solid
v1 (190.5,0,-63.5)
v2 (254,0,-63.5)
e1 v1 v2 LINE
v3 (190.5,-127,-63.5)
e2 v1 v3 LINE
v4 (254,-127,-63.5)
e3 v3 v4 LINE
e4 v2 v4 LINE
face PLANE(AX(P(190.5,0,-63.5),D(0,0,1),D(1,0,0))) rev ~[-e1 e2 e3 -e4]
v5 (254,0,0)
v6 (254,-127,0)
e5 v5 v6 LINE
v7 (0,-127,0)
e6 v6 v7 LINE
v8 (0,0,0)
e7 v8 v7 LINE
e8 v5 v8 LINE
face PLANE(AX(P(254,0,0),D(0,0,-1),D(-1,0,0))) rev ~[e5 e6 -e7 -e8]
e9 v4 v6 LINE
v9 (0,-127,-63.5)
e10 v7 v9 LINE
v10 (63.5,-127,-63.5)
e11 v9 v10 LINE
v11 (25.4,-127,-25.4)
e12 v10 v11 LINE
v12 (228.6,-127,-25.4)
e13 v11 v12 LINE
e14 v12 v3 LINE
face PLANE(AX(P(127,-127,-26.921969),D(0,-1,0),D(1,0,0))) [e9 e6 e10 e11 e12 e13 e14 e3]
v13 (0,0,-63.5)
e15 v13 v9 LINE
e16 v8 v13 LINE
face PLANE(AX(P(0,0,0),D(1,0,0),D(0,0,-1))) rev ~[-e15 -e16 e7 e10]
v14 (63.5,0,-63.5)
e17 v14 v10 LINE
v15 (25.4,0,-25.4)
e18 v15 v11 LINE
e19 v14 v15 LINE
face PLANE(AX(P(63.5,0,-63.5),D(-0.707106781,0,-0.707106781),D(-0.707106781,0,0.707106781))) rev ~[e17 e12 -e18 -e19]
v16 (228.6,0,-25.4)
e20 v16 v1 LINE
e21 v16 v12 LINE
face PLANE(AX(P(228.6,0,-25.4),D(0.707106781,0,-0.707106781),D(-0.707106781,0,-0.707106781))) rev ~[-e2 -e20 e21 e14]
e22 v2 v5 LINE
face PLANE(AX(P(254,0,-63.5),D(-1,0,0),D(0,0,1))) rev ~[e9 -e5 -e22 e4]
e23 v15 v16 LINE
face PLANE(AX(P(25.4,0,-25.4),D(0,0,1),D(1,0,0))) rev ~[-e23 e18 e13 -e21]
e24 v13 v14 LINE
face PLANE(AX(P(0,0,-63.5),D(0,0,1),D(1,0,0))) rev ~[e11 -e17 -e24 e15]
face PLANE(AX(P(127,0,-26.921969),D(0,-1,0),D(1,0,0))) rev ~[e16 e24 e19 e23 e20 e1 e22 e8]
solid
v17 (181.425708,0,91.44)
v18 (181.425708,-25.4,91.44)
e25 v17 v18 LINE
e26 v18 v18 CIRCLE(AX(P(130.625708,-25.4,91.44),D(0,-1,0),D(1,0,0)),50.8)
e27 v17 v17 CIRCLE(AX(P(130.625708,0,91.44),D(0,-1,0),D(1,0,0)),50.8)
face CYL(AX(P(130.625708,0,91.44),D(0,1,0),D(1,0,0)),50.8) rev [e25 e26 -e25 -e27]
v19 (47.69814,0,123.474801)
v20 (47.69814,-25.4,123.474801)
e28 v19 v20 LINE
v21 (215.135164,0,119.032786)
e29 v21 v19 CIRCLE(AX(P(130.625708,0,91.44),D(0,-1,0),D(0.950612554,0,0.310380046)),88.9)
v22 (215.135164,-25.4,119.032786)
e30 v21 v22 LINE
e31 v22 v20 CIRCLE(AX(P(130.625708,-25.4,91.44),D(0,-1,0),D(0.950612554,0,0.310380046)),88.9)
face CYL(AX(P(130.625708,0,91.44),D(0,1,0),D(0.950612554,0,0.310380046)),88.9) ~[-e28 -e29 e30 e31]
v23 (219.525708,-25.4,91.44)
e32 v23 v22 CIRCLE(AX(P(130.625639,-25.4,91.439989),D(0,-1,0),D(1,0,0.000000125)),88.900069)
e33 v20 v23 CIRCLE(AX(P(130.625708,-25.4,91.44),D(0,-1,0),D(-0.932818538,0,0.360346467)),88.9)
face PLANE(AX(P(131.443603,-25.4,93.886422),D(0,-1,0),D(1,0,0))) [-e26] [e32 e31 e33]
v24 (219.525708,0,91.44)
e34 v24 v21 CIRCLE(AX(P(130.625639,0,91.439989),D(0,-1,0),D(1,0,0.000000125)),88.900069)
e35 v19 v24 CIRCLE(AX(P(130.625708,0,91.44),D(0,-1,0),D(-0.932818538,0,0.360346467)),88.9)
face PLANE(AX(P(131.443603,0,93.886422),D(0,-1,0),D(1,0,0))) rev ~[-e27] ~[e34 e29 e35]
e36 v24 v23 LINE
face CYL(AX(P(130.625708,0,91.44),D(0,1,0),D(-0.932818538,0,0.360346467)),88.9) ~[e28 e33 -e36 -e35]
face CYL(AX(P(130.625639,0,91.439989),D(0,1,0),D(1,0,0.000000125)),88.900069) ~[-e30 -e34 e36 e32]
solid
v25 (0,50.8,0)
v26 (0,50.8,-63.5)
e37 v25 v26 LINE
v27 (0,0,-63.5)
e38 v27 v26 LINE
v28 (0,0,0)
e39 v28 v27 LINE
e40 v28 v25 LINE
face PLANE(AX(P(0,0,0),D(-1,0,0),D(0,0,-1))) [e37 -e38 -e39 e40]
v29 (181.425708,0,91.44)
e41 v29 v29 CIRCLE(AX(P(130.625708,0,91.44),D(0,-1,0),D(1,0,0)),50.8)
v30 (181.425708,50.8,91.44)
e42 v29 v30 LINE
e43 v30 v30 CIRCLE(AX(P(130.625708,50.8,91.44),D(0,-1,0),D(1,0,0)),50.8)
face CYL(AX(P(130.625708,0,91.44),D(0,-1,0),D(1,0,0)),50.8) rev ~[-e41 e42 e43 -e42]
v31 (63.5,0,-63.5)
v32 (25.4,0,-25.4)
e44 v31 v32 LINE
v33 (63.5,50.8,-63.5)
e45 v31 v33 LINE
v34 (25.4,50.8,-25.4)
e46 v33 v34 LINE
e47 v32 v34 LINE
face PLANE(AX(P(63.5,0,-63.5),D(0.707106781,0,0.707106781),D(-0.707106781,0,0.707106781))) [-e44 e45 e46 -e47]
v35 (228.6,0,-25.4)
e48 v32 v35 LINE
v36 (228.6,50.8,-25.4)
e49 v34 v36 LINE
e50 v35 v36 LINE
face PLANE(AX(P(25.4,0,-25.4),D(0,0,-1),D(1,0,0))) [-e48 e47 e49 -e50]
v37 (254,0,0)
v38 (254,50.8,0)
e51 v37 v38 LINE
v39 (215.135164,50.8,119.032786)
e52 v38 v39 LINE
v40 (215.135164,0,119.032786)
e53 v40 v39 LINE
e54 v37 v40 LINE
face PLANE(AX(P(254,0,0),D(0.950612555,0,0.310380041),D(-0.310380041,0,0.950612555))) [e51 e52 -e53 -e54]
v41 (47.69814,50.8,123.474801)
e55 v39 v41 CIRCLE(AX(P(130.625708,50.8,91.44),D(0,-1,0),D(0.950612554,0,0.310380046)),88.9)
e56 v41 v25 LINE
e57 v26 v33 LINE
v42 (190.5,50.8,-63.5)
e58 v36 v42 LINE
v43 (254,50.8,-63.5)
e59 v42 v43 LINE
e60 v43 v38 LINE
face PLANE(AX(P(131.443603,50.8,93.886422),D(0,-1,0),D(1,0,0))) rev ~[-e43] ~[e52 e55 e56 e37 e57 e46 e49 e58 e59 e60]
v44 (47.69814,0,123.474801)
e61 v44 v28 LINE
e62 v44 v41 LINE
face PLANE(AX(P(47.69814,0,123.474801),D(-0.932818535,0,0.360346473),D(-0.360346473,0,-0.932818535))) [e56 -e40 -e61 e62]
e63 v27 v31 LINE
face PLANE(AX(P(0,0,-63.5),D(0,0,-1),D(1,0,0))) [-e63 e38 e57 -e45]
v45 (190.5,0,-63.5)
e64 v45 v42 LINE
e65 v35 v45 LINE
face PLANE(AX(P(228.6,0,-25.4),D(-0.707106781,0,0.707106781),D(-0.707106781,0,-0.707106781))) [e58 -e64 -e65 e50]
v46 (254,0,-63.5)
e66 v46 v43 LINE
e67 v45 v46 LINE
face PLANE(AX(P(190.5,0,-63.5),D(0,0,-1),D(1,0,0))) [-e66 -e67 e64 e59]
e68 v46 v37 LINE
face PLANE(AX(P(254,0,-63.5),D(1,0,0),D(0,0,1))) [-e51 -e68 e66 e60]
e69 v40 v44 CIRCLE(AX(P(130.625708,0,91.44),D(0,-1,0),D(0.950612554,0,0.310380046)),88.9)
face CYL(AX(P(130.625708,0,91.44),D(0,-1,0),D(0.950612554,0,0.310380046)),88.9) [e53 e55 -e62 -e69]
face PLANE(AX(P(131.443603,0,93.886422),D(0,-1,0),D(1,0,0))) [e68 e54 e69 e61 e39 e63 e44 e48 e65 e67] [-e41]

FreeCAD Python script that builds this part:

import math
import FreeCAD as App
import Part
import Sketcher
from FreeCAD import Vector
Q = App.Units.Quantity


def add_polygon(sketch, points):
    """Adds a closed chain of lines whose ends are joined by coincident constraints."""
    first, n = sketch.GeometryCount, len(points)
    for a, b in zip(points, points[1:] + points[:1]):
        sketch.addGeometry(Part.LineSegment(App.Vector(*a, 0), App.Vector(*b, 0)), False)
    for i in range(n):
        sketch.addConstraint(Sketcher.Constraint("Coincident", first + i, 2, first + (i + 1) % n, 1))

doc = App.newDocument("Part")
body = doc.addObject("PartDesign::Body", "Body")

sketch1 = doc.addObject("Sketcher::SketchObject", "Sketch")
body.addObject(sketch1)
sketch1.AttachmentSupport = (doc.XZ_Plane, [""])
sketch1.MapMode = "FlatFace"
add_polygon(sketch1, [(254, 0), (0, 0), (0, -63.5), (63.5, -63.5), (25.4, -25.4), (228.6, -25.4), (190.5, -63.5), (254, -63.5)])
sketch1.addConstraint(Sketcher.Constraint("Horizontal", 0))
sketch1.addConstraint(Sketcher.Constraint("Vertical", 1))
sketch1.addConstraint(Sketcher.Constraint("Horizontal", 2))
sketch1.addConstraint(Sketcher.Constraint("Horizontal", 4))
sketch1.addConstraint(Sketcher.Constraint("Horizontal", 6))
sketch1.addConstraint(Sketcher.Constraint("Vertical", 7))
sketch1.addConstraint(Sketcher.Constraint("Coincident", 0, 2, -1, 1))
sketch1.addConstraint(Sketcher.Constraint("Perpendicular", 3, 5))
sketch1.addConstraint(Sketcher.Constraint("Horizontal", 2, 2, 5, 2))
sketch1.addConstraint(Sketcher.Constraint("Equal", 2, 6))
sketch1.addConstraint(Sketcher.Constraint("Equal", 6, 1))
sketch1.addConstraint(Sketcher.Constraint("Equal", 3, 5))
sketch1.addConstraint(Sketcher.Constraint("DistanceX", 0, 2, 0, 1, Q("10 in")))
sketch1.addConstraint(Sketcher.Constraint("DistanceX", 4, 1, 4, 2, Q("8 in")))
sketch1.addConstraint(Sketcher.Constraint("DistanceX", 2, 1, 2, 2, Q("2.5 in")))
pad1 = doc.addObject("PartDesign::Pad", "Pad")
body.addObject(pad1)
pad1.Profile = sketch1
pad1.Length = Q("5 in")
body2 = doc.addObject("PartDesign::Body", "Body001")

sketch2 = doc.addObject("Sketcher::SketchObject", "Sketch001")
body2.addObject(sketch2)
sketch2.AttachmentSupport = (doc.getObject("XZ_Plane001"), [""])
sketch2.MapMode = "FlatFace"
sketch2.addGeometry(Part.ArcOfCircle(Part.Circle(Vector(130.625708, 91.44, 0), Vector(0, 0, 1), 88.9), math.radians(18.082135), math.radians(158.878525)), False)
sketch2.addGeometry(Part.ArcOfCircle(Part.Circle(Vector(130.625708, 91.44, 0), Vector(0, 0, 1), 88.9), math.radians(158.878525), math.radians(360)), False)
sketch2.addGeometry(Part.ArcOfCircle(Part.Circle(Vector(130.625639, 91.439989, 0), Vector(0, 0, 1), 88.900069), math.radians(0.000007), math.radians(18.082128)), False)
sketch2.addGeometry(Part.Circle(Vector(130.625708, 91.44, 0), Vector(0, 0, 1), 50.8), False)
sketch2.addConstraint(Sketcher.Constraint("Coincident", 0, 2, 1, 1))
sketch2.addConstraint(Sketcher.Constraint("Coincident", 1, 2, 2, 1))
sketch2.addConstraint(Sketcher.Constraint("Coincident", 2, 2, 0, 1))
sketch2.addConstraint(Sketcher.Constraint("Coincident", 1, 3, 0, 3))
sketch2.addConstraint(Sketcher.Constraint("Coincident", 3, 3, 0, 3))
sketch2.addConstraint(Sketcher.Constraint("Diameter", 3, Q("4 in")))
sketch2.addConstraint(Sketcher.Constraint("Radius", 0, Q("3.5 in")))
sketch2.addConstraint(Sketcher.Constraint("DistanceY", -1, 1, 0, 3, Q("3.6 in")))
sketch2.addConstraint(Sketcher.Constraint("DistanceY", -1, 1, 1, 2, Q("3.6 in")))
sketch2.addConstraint(Sketcher.Constraint("Radius", 2, Q("88.900069 mm")))
sketch2.addConstraint(Sketcher.Constraint("DistanceY", -1, 1, 0, 2, Q("123.474801 mm")))
sketch2.addConstraint(Sketcher.Constraint("DistanceX", -1, 1, 2, 3, Q("130.625639 mm")))
sketch2.addConstraint(Sketcher.Constraint("DistanceX", -1, 1, 2, 2, Q("215.135164 mm")))
pad2 = doc.addObject("PartDesign::Pad", "Pad001")
body2.addObject(pad2)
pad2.Profile = sketch2
pad2.Length = Q("1 in")
body3 = doc.addObject("PartDesign::Body", "Body002")

sketch3 = doc.addObject("Sketcher::SketchObject", "Sketch002")
body3.addObject(sketch3)
sketch3.AttachmentSupport = (doc.getObject("XZ_Plane002"), [""])
sketch3.MapMode = "FlatFace"
sketch3.addGeometry(Part.ArcOfCircle(Part.Circle(Vector(130.625708, 91.44, 0), Vector(0, 0, 1), 88.9), math.radians(18.082135), math.radians(158.878525)), False)
sketch3.addGeometry(Part.LineSegment(Vector(47.69814, 123.474801, 0), Vector(0, 0, 0)), False)
sketch3.addGeometry(Part.LineSegment(Vector(0, 0, 0), Vector(0, -63.5, 0)), False)
sketch3.addGeometry(Part.LineSegment(Vector(0, -63.5, 0), Vector(63.5, -63.5, 0)), False)
sketch3.addGeometry(Part.LineSegment(Vector(63.5, -63.5, 0), Vector(25.4, -25.4, 0)), False)
sketch3.addGeometry(Part.LineSegment(Vector(25.4, -25.4, 0), Vector(228.6, -25.4, 0)), False)
sketch3.addGeometry(Part.LineSegment(Vector(228.6, -25.4, 0), Vector(190.5, -63.5, 0)), False)
sketch3.addGeometry(Part.LineSegment(Vector(190.5, -63.5, 0), Vector(254, -63.5, 0)), False)
sketch3.addGeometry(Part.LineSegment(Vector(254, -63.5, 0), Vector(254, 0, 0)), False)
sketch3.addGeometry(Part.LineSegment(Vector(254, 0, 0), Vector(215.135164, 119.032786, 0)), False)
sketch3.addGeometry(Part.Circle(Vector(130.625708, 91.44, 0), Vector(0, 0, 1), 50.8), False)
sketch3.addConstraint(Sketcher.Constraint("Tangent", 0, 2, 1, 1))
sketch3.addConstraint(Sketcher.Constraint("Coincident", 1, 2, 2, 1))
sketch3.addConstraint(Sketcher.Constraint("Coincident", 2, 2, 3, 1))
sketch3.addConstraint(Sketcher.Constraint("Coincident", 3, 2, 4, 1))
sketch3.addConstraint(Sketcher.Constraint("Coincident", 4, 2, 5, 1))
sketch3.addConstraint(Sketcher.Constraint("Coincident", 5, 2, 6, 1))
sketch3.addConstraint(Sketcher.Constraint("Coincident", 6, 2, 7, 1))
sketch3.addConstraint(Sketcher.Constraint("Coincident", 7, 2, 8, 1))
sketch3.addConstraint(Sketcher.Constraint("Coincident", 8, 2, 9, 1))
sketch3.addConstraint(Sketcher.Constraint("Tangent", 9, 2, 0, 1))
sketch3.addConstraint(Sketcher.Constraint("Vertical", 2))
sketch3.addConstraint(Sketcher.Constraint("Horizontal", 3))
sketch3.addConstraint(Sketcher.Constraint("Horizontal", 5))
sketch3.addConstraint(Sketcher.Constraint("Horizontal", 7))
sketch3.addConstraint(Sketcher.Constraint("Vertical", 8))
sketch3.addConstraint(Sketcher.Constraint("Coincident", 1, 2, -1, 1))
sketch3.addConstraint(Sketcher.Constraint("Coincident", 10, 3, 0, 3))
sketch3.addConstraint(Sketcher.Constraint("PointOnObject", 8, 2, -1))
sketch3.addConstraint(Sketcher.Constraint("Perpendicular", 4, 6))
sketch3.addConstraint(Sketcher.Constraint("Horizontal", 3, 2, 6, 2))
sketch3.addConstraint(Sketcher.Constraint("Equal", 3, 7))
sketch3.addConstraint(Sketcher.Constraint("Equal", 7, 2))
sketch3.addConstraint(Sketcher.Constraint("Equal", 4, 6))
sketch3.addConstraint(Sketcher.Constraint("Diameter", 10, Q("4 in")))
sketch3.addConstraint(Sketcher.Constraint("Radius", 0, Q("3.5 in")))
sketch3.addConstraint(Sketcher.Constraint("DistanceX", 5, 1, 5, 2, Q("8 in")))
sketch3.addConstraint(Sketcher.Constraint("DistanceX", 3, 1, 3, 2, Q("2.5 in")))
sketch3.addConstraint(Sketcher.Constraint("DistanceX", -1, 1, 4, 2, Q("1 in")))
sketch3.addConstraint(Sketcher.Constraint("DistanceY", -1, 1, 0, 3, Q("3.6 in")))
sketch3.addConstraint(Sketcher.Constraint("DistanceY", -1, 1, 0, 2, Q("123.474801 mm")))
pad3 = doc.addObject("PartDesign::Pad", "Pad002")
body3.addObject(pad3)
pad3.Profile = sketch3
pad3.Length = Q("2 in")
pad3.Reversed = True

doc.recompute()
